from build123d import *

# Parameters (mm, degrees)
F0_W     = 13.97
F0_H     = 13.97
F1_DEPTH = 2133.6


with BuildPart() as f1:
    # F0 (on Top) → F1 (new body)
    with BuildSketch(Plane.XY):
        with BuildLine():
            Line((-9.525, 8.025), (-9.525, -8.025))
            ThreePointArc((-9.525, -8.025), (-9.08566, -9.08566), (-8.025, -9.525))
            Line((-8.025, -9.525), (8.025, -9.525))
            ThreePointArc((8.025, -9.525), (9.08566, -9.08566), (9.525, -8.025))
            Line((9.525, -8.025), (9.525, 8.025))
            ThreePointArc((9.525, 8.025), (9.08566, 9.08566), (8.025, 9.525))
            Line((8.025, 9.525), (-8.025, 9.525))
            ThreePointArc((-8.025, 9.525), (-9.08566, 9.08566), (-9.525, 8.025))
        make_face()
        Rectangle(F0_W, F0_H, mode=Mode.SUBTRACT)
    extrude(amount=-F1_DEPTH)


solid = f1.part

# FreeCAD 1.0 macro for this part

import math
import FreeCAD as App
import Part
import Sketcher
from FreeCAD import Vector
Q = App.Units.Quantity


def add_polygon(sketch, points):
    """Adds a closed chain of lines whose ends are joined by coincident constraints."""
    first, n = sketch.GeometryCount, len(points)
    for a, b in zip(points, points[1:] + points[:1]):
        sketch.addGeometry(Part.LineSegment(App.Vector(*a, 0), App.Vector(*b, 0)), False)
    for i in range(n):
        sketch.addConstraint(Sketcher.Constraint("Coincident", first + i, 2, first + (i + 1) % n, 1))

doc = App.newDocument("Part")
body = doc.addObject("PartDesign::Body", "Body")

sketch1 = body.newObject("Sketcher::SketchObject", "Sketch")
sketch1.AttachmentSupport = (doc.getObject("XY_Plane"), [""])
sketch1.MapMode = "FlatFace"
sketch1.addGeometry(Part.LineSegment(Vector(-9.5, 8, 0), Vector(-9.5, -8, 0)), False)
sketch1.addGeometry(Part.ArcOfCircle(Part.Circle(Vector(-8, -8, 0), Vector(0, 0, 1), 1.5), math.radians(-180), math.radians(-90)), False)
sketch1.addGeometry(Part.LineSegment(Vector(-8, -9.5, 0), Vector(8, -9.5, 0)), False)
sketch1.addGeometry(Part.ArcOfCircle(Part.Circle(Vector(8, -8, 0), Vector(0, 0, 1), 1.5), math.radians(-90), math.radians(0)), False)
sketch1.addGeometry(Part.LineSegment(Vector(9.5, -8, 0), Vector(9.5, 8, 0)), False)
sketch1.addGeometry(Part.ArcOfCircle(Part.Circle(Vector(8, 8, 0), Vector(0, 0, 1), 1.5), math.radians(0), math.radians(90)), False)
sketch1.addGeometry(Part.LineSegment(Vector(8, 9.5, 0), Vector(-8, 9.5, 0)), False)
sketch1.addGeometry(Part.ArcOfCircle(Part.Circle(Vector(-8, 8, 0), Vector(0, 0, 1), 1.5), math.radians(90), math.radians(180)), False)
add_polygon(sketch1, [(7, -7), (-7, -7), (-7, 7), (7, 7)])
sketch1.addConstraint(Sketcher.Constraint("Tangent", 0, 2, 1, 1))
sketch1.addConstraint(Sketcher.Constraint("Tangent", 1, 2, 2, 1))
sketch1.addConstraint(Sketcher.Constraint("Tangent", 2, 2, 3, 1))
sketch1.addConstraint(Sketcher.Constraint("Tangent", 3, 2, 4, 1))
sketch1.addConstraint(Sketcher.Constraint("Tangent", 4, 2, 5, 1))
sketch1.addConstraint(Sketcher.Constraint("Tangent", 5, 2, 6, 1))
sketch1.addConstraint(Sketcher.Constraint("Tangent", 6, 2, 7, 1))
sketch1.addConstraint(Sketcher.Constraint("Tangent", 7, 2, 0, 1))
sketch1.addConstraint(Sketcher.Constraint("Vertical", 0))
sketch1.addConstraint(Sketcher.Constraint("Horizontal", 2))
sketch1.addConstraint(Sketcher.Constraint("Vertical", 4))
sketch1.addConstraint(Sketcher.Constraint("Horizontal", 6))
sketch1.addConstraint(Sketcher.Constraint("Horizontal", 8))
sketch1.addConstraint(Sketcher.Constraint("Vertical", 9))
sketch1.addConstraint(Sketcher.Constraint("Horizontal", 10))
sketch1.addConstraint(Sketcher.Constraint("Vertical", 11))
sketch1.addConstraint(Sketcher.Constraint("Equal", 1, 3))
sketch1.addConstraint(Sketcher.Constraint("Equal", 3, 5))
sketch1.addConstraint(Sketcher.Constraint("Equal", 5, 7))
sketch1.addConstraint(Sketcher.Constraint("Symmetric", 1, 3, 5, 3, -1, 1))
sketch1.addConstraint(Sketcher.Constraint("Symmetric", 8, 2, 10, 2, -1, 1))
sketch1.addConstraint(Sketcher.Constraint("Equal", 6, 0))
sketch1.addConstraint(Sketcher.Constraint("Equal", 10, 9))
sketch1.addConstraint(Sketcher.Constraint("DistanceX", 8, 2, 8, 1, Q("0.55 in")))
sketch1.addConstraint(Sketcher.Constraint("DistanceY", 1, 2, 8, 2, Q("0.1 in")))
sketch1.addConstraint(Sketcher.Constraint("Radius", 1, Q("1.500001 mm")))
pad1 = body.newObject("PartDesign::Pad", "Pad")
pad1.Profile = sketch1
pad1.Length = Q("84 in")
pad1.Reversed = True

doc.recompute()
